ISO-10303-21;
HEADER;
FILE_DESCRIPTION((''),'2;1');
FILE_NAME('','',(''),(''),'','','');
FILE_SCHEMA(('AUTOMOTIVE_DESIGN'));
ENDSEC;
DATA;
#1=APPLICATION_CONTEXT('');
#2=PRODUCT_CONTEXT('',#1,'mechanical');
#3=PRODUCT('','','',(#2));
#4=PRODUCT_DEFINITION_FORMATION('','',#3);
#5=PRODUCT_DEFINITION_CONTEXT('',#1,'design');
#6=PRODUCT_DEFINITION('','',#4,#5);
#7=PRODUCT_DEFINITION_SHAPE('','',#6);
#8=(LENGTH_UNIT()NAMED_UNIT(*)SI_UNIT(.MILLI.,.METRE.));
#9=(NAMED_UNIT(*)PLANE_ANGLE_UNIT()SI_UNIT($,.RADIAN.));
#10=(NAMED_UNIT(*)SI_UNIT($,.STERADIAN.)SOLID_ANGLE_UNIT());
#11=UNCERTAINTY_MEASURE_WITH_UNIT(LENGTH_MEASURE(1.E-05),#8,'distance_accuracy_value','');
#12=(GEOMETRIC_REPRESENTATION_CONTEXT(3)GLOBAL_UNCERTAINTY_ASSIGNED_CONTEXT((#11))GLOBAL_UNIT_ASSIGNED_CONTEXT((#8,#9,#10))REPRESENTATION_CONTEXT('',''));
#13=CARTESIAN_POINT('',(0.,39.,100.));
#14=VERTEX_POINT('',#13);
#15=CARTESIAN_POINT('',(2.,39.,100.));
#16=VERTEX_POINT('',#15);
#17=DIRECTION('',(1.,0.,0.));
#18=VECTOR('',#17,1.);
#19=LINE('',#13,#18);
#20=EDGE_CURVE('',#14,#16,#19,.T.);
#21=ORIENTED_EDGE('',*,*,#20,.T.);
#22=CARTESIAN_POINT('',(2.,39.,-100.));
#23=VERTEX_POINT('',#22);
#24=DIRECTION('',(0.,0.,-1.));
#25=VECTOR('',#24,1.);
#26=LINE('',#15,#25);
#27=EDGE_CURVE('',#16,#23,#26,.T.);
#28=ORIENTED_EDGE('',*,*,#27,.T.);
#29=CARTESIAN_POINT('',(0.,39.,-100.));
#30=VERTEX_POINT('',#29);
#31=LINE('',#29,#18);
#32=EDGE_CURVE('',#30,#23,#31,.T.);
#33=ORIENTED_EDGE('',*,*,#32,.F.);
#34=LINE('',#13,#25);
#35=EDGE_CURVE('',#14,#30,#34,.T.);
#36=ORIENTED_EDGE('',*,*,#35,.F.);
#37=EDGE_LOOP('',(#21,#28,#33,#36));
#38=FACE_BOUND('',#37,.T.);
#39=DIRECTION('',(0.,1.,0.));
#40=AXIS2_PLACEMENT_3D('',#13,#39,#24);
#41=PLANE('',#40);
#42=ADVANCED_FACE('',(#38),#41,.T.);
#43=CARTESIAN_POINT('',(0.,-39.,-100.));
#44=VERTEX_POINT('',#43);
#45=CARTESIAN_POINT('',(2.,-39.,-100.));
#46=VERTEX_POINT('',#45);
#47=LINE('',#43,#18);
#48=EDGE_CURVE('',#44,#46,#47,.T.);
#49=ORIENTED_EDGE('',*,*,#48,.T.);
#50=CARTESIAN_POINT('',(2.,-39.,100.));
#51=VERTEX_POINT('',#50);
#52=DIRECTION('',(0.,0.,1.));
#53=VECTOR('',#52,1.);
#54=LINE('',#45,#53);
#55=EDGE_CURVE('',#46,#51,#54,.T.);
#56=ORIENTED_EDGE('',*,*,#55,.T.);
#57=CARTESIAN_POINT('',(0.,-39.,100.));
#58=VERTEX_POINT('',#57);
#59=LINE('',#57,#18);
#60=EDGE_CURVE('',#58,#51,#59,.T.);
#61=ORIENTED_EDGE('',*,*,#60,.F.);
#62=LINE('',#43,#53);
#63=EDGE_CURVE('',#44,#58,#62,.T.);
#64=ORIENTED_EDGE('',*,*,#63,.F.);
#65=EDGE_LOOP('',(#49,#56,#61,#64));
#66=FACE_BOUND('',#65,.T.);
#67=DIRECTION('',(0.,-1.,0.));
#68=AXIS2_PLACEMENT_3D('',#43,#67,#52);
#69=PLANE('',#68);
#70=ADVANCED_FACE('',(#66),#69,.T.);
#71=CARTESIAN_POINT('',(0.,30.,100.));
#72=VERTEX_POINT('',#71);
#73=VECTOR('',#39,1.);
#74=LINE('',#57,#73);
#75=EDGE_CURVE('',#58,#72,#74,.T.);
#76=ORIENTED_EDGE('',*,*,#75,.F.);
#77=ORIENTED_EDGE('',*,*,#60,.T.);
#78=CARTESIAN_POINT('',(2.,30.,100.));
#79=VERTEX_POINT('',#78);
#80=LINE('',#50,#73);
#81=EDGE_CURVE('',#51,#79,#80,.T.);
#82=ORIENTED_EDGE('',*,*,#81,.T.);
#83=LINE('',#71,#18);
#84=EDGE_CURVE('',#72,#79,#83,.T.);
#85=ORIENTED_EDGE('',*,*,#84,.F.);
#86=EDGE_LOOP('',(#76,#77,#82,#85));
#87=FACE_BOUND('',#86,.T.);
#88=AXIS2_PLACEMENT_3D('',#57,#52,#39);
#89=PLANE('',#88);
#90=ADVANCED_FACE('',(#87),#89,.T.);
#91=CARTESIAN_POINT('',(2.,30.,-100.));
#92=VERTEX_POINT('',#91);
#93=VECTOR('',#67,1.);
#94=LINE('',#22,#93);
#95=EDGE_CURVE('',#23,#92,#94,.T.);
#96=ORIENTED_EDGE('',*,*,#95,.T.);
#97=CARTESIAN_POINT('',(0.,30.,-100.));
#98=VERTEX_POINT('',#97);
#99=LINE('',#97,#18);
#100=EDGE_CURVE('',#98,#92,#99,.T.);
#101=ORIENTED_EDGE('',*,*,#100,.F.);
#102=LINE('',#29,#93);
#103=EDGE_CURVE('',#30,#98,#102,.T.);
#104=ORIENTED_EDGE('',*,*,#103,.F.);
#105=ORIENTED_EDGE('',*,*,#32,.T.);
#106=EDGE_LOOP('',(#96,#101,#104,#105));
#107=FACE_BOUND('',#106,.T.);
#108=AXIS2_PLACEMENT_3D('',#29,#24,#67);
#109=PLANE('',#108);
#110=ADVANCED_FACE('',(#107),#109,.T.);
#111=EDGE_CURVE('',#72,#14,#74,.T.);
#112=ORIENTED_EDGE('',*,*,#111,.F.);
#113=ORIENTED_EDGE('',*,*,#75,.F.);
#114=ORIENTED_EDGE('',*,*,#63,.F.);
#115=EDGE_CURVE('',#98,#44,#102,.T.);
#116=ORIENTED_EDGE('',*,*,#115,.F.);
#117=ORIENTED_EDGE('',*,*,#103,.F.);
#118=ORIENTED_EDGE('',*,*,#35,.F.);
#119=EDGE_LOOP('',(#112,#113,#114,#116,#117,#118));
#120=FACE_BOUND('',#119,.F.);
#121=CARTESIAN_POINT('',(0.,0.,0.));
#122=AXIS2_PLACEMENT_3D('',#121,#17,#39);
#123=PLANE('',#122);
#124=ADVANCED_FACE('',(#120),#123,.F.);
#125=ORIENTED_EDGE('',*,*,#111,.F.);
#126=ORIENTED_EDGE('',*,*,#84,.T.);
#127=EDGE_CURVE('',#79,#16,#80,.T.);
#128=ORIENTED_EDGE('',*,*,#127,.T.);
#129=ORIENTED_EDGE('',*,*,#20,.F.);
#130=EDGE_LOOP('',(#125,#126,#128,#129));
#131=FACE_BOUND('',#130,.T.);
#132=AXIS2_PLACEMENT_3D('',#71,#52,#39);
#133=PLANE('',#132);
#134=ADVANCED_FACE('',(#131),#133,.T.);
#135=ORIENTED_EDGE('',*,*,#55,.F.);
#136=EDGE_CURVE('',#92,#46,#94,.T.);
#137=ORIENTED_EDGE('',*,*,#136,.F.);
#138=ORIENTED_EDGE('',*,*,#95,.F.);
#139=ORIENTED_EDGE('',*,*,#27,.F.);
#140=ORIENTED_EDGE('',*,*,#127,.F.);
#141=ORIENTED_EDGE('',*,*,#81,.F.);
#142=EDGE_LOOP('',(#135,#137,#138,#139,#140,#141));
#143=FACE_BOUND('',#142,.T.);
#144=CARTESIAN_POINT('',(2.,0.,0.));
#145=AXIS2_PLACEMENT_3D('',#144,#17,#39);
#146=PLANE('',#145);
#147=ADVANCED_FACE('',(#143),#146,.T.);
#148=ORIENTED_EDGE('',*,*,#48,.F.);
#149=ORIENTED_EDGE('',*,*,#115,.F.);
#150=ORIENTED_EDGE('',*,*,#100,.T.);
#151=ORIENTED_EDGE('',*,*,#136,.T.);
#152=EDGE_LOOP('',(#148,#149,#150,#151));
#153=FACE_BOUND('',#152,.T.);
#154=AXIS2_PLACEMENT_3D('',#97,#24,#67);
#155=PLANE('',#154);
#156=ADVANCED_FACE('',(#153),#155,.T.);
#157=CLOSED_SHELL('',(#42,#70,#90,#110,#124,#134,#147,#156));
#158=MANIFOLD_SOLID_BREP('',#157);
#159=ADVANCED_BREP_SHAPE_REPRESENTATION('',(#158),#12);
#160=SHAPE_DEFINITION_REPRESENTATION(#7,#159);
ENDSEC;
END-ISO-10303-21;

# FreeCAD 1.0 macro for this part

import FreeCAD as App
import Part
import Sketcher

doc = App.newDocument("Part")
body = doc.addObject("PartDesign::Body", "Body")

sketch1 = body.newObject("Sketcher::SketchObject", "Sketch")
sketch1.AttachmentSupport = (doc.getObject("YZ_Plane"), [""])
sketch1.MapMode = "FlatFace"
sketch1.addGeometry(Part.LineSegment(App.Vector(39, 100, 0), App.Vector(-39, 100, 0)), False)
sketch1.addGeometry(Part.LineSegment(App.Vector(-39, 100, 0), App.Vector(-39, -100, 0)), False)
sketch1.addGeometry(Part.LineSegment(App.Vector(-39, -100, 0), App.Vector(39, -100, 0)), False)
sketch1.addGeometry(Part.LineSegment(App.Vector(39, -100, 0), App.Vector(39, 100, 0)), False)
sketch1.addConstraint(Sketcher.Constraint("Coincident", 0, 2, 1, 1))
sketch1.addConstraint(Sketcher.Constraint("Coincident", 1, 2, 2, 1))
sketch1.addConstraint(Sketcher.Constraint("Coincident", 2, 2, 3, 1))
sketch1.addConstraint(Sketcher.Constraint("Coincident", 3, 2, 0, 1))
sketch1.addConstraint(Sketcher.Constraint("Horizontal", 0))
sketch1.addConstraint(Sketcher.Constraint("Vertical", 1))
sketch1.addConstraint(Sketcher.Constraint("Horizontal", 2))
sketch1.addConstraint(Sketcher.Constraint("Vertical", 3))
sketch1.addConstraint(Sketcher.Constraint("Symmetric", 0, 2, 2, 2, -1, 1))
sketch1.addConstraint(Sketcher.Constraint("DistanceX", 0, 2, 0, 1, 78.0))
sketch1.addConstraint(Sketcher.Constraint("DistanceY", 1, 2, 1, 1, 200.0))
pad1 = body.newObject("PartDesign::Pad", "Pad")
pad1.Profile = sketch1
pad1.Length = 2

doc.recompute()
